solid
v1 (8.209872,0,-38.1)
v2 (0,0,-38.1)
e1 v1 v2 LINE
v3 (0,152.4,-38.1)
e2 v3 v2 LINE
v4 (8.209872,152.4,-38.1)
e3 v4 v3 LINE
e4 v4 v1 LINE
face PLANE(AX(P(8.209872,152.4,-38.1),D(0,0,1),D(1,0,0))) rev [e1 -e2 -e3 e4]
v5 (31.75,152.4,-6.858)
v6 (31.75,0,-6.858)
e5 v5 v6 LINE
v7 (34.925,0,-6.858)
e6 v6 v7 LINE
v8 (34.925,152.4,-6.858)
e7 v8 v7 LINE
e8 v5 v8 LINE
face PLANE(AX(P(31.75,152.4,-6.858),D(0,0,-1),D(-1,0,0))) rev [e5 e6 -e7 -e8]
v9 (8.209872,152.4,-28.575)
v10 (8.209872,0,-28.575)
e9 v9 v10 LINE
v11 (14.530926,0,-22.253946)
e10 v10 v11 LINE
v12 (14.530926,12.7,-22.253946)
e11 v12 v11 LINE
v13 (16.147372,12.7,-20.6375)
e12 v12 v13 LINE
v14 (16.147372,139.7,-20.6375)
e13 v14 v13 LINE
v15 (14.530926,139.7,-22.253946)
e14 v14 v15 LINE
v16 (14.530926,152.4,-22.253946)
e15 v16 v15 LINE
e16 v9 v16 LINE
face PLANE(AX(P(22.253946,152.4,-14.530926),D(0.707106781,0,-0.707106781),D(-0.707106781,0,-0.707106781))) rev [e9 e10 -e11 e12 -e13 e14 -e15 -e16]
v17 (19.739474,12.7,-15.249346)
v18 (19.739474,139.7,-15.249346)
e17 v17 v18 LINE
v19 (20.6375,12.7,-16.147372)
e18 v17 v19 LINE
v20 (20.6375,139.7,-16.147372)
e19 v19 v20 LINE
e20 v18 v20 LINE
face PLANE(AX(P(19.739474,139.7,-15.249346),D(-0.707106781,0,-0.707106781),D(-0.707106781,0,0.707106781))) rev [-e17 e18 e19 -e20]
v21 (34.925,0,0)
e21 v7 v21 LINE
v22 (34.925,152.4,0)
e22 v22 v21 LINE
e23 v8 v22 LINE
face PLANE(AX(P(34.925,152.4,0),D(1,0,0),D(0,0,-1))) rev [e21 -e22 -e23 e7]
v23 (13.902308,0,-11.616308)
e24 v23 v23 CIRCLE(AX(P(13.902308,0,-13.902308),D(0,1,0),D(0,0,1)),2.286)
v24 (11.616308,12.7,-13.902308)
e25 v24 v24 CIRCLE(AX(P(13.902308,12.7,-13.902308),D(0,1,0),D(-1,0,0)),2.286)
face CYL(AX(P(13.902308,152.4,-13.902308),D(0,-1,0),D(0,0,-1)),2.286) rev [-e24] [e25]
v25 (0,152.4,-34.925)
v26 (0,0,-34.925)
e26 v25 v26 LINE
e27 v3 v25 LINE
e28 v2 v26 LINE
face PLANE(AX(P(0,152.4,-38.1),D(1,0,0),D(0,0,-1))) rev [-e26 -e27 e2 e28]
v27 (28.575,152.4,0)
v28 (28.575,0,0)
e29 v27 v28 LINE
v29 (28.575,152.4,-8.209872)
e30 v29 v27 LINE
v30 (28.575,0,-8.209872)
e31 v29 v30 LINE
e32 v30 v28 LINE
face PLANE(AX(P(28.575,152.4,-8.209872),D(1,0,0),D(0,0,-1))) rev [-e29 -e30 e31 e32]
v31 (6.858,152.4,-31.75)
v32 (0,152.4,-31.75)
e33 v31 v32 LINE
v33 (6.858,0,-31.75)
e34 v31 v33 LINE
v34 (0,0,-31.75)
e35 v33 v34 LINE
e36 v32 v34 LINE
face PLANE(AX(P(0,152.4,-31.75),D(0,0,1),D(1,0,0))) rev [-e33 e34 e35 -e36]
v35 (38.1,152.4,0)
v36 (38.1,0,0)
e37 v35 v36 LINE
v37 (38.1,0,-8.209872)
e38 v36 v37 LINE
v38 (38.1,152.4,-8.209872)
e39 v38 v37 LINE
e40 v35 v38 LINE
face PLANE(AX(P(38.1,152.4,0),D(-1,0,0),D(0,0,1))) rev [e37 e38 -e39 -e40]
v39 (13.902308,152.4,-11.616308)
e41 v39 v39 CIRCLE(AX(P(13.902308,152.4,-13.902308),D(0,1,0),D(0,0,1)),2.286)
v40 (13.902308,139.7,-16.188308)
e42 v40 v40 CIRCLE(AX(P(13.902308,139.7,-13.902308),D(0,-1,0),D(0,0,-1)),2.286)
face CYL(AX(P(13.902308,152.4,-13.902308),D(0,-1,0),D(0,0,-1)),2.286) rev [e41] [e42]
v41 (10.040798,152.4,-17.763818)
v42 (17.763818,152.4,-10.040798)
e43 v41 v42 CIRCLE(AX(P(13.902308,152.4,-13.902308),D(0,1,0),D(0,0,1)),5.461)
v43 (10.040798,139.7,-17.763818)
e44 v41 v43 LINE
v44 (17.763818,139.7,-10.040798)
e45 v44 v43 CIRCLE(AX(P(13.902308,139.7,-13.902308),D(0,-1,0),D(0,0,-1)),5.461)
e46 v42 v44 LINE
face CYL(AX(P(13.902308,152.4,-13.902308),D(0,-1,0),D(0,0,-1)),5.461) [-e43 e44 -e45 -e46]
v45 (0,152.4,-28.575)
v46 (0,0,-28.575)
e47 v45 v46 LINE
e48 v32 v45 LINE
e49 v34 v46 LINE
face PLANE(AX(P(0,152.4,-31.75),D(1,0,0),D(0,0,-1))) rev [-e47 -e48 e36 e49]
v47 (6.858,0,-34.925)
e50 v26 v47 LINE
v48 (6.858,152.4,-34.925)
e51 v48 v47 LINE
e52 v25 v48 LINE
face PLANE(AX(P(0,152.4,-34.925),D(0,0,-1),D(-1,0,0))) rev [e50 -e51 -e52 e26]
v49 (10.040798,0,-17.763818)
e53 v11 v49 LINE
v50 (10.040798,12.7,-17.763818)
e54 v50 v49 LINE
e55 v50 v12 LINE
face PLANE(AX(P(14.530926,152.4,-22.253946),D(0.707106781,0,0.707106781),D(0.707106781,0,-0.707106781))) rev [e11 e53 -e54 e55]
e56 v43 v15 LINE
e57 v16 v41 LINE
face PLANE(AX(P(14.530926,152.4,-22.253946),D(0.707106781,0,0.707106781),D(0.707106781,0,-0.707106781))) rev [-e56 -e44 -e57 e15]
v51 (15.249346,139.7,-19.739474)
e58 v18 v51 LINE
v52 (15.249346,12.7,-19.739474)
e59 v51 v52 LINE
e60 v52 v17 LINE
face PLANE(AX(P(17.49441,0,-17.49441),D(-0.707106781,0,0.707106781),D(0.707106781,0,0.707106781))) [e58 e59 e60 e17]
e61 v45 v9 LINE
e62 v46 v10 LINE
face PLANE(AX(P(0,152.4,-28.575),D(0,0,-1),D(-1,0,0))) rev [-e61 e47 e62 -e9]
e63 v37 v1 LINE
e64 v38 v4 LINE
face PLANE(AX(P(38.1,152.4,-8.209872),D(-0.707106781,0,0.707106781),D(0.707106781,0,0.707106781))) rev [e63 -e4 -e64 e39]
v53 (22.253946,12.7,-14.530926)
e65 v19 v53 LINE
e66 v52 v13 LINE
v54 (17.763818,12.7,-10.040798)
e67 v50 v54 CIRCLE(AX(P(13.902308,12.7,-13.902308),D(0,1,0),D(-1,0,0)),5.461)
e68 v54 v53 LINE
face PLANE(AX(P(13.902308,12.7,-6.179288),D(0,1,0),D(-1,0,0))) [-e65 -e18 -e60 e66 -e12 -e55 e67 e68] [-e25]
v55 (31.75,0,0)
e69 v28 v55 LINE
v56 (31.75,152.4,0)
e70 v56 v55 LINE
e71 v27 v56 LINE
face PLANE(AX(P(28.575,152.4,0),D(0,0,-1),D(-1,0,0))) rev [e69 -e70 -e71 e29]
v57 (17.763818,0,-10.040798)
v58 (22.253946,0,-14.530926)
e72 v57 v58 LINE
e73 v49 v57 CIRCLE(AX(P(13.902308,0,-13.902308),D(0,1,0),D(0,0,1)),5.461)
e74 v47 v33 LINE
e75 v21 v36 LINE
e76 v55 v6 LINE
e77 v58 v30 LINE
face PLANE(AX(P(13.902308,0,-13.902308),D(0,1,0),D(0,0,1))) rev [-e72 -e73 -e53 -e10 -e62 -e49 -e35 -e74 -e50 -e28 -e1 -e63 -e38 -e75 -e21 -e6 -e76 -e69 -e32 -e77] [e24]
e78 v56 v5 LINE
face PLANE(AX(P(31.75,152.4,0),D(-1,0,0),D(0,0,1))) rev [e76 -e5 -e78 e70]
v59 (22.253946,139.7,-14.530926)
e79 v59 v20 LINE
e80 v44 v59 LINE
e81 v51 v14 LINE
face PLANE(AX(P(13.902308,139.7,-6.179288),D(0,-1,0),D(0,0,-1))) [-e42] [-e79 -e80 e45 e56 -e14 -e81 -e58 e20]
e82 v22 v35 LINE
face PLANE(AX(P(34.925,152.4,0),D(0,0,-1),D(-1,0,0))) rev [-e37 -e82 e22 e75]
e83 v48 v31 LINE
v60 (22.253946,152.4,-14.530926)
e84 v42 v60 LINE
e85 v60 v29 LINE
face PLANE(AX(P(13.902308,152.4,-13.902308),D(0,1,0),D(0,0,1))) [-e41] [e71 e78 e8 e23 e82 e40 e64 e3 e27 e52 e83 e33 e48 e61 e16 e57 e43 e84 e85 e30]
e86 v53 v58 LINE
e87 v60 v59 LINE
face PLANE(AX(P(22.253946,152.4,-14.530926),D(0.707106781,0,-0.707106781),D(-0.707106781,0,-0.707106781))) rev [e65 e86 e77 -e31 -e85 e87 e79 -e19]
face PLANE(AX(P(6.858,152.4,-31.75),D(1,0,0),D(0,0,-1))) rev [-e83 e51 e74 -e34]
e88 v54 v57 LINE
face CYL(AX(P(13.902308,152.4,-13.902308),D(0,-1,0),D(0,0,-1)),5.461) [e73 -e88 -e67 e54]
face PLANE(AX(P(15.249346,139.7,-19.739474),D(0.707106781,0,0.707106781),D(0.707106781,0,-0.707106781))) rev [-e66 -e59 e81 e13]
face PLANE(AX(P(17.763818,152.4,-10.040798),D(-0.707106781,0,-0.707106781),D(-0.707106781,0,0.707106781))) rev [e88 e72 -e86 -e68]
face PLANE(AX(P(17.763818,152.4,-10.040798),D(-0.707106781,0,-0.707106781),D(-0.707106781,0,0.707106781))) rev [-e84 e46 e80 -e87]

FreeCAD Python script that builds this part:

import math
import FreeCAD as App
import Part
import Sketcher

V = App.Vector
Q = App.Units.Quantity

doc = App.newDocument("Part")
body = doc.addObject("PartDesign::Body", "Body")

# Sketch on XZ plane
sketch1 = body.newObject("Sketcher::SketchObject", "Sketch")
sketch1.AttachmentSupport = (doc.getObject("XZ_Plane"), [""])
sketch1.MapMode = "FlatFace"
sketch1.addGeometry([
    Part.LineSegment(V(38.1, 0, 0), V(38.1, -8.2, 0)),  # 0
    Part.LineSegment(V(38.1, -8.2, 0), V(8.2, -38.1, 0)),  # 1
    Part.LineSegment(V(8.2, -38.1, 0), V(0, -38.1, 0)),  # 2
    Part.LineSegment(V(0, -38.1, 0), V(0, -34.9, 0)),  # 3
    Part.LineSegment(V(0, -34.9, 0), V(6.9, -34.9, 0)),  # 4
    Part.LineSegment(V(6.9, -34.9, 0), V(6.9, -31.8, 0)),  # 5
    Part.LineSegment(V(6.9, -31.8, 0), V(0, -31.8, 0)),  # 6
    Part.LineSegment(V(0, -31.8, 0), V(0, -28.6, 0)),  # 7
    Part.LineSegment(V(0, -28.6, 0), V(8.2, -28.6, 0)),  # 8
    Part.LineSegment(V(8.2, -28.6, 0), V(14.5, -22.3, 0)),  # 9
    Part.LineSegment(V(14.5, -22.3, 0), V(10, -17.8, 0)),  # 10
    Part.ArcOfCircle(Part.Circle(V(13.9, -13.9, 0), V(0, 0, 1), 5.5), math.radians(45), math.radians(225)),  # 11
    Part.LineSegment(V(17.8, -10, 0), V(22.3, -14.5, 0)),  # 12
    Part.LineSegment(V(22.3, -14.5, 0), V(28.6, -8.2, 0)),  # 13
    Part.LineSegment(V(28.6, -8.2, 0), V(28.6, 0, 0)),  # 14
    Part.LineSegment(V(28.6, 0, 0), V(31.8, 0, 0)),  # 15
    Part.LineSegment(V(31.8, 0, 0), V(31.8, -6.9, 0)),  # 16
    Part.LineSegment(V(31.8, -6.9, 0), V(34.9, -6.9, 0)),  # 17
    Part.LineSegment(V(34.9, -6.9, 0), V(34.9, 0, 0)),  # 18
    Part.LineSegment(V(34.9, 0, 0), V(38.1, 0, 0)),  # 19
    Part.Circle(V(13.9, -13.9, 0), V(0, 0, 1), 2.3),  # 20
], False)
sketch1.addConstraint([
    Sketcher.Constraint("Coincident", 0, 2, 1, 1),
    Sketcher.Constraint("Coincident", 1, 2, 2, 1),
    Sketcher.Constraint("Coincident", 2, 2, 3, 1),
    Sketcher.Constraint("Coincident", 3, 2, 4, 1),
    Sketcher.Constraint("Coincident", 4, 2, 5, 1),
    Sketcher.Constraint("Coincident", 5, 2, 6, 1),
    Sketcher.Constraint("Coincident", 6, 2, 7, 1),
    Sketcher.Constraint("Coincident", 7, 2, 8, 1),
    Sketcher.Constraint("Coincident", 8, 2, 9, 1),
    Sketcher.Constraint("Coincident", 9, 2, 10, 1),
    Sketcher.Constraint("Tangent", 10, 2, 11, 2),
    Sketcher.Constraint("Tangent", 11, 1, 12, 1),
    Sketcher.Constraint("Coincident", 12, 2, 13, 1),
    Sketcher.Constraint("Coincident", 13, 2, 14, 1),
    Sketcher.Constraint("Coincident", 14, 2, 15, 1),
    Sketcher.Constraint("Coincident", 15, 2, 16, 1),
    Sketcher.Constraint("Coincident", 16, 2, 17, 1),
    Sketcher.Constraint("Coincident", 17, 2, 18, 1),
    Sketcher.Constraint("Coincident", 18, 2, 19, 1),
    Sketcher.Constraint("Coincident", 19, 2, 0, 1),
    Sketcher.Constraint("Vertical", 0),
    Sketcher.Constraint("Horizontal", 2),
    Sketcher.Constraint("Vertical", 3),
    Sketcher.Constraint("Horizontal", 4),
    Sketcher.Constraint("Vertical", 5),
    Sketcher.Constraint("Horizontal", 6),
    Sketcher.Constraint("Vertical", 7),
    Sketcher.Constraint("Horizontal", 8),
    Sketcher.Constraint("Vertical", 14),
    Sketcher.Constraint("Horizontal", 15),
    Sketcher.Constraint("Vertical", 16),
    Sketcher.Constraint("Horizontal", 17),
    Sketcher.Constraint("Vertical", 18),
    Sketcher.Constraint("Horizontal", 19),
    Sketcher.Constraint("Coincident", 20, 3, 11, 3),
    Sketcher.Constraint("PointOnObject", 2, 2, -2),
    Sketcher.Constraint("PointOnObject", 6, 2, -2),
    Sketcher.Constraint("PointOnObject", 14, 2, -1),
    Sketcher.Constraint("PointOnObject", 18, 2, -1),
    Sketcher.Constraint("Parallel", 1, 9),
    Sketcher.Constraint("Perpendicular", 9, 10),
    Sketcher.Constraint("Parallel", 10, 12),
    Sketcher.Constraint("Perpendicular", 12, 13),
    Sketcher.Constraint("Horizontal", 0, 2, 13, 2),
    Sketcher.Constraint("Vertical", 1, 2, 8, 2),
    Sketcher.Constraint("Equal", 15, 17),
    Sketcher.Constraint("Equal", 17, 19),
    Sketcher.Constraint("Equal", 8, 0),
    Sketcher.Constraint("Equal", 19, 3),
    Sketcher.Constraint("Equal", 3, 5),
    Sketcher.Constraint("Equal", 5, 7),
    Sketcher.Constraint("Equal", 6, 16),
    Sketcher.Constraint("Equal", 10, 12),
    Sketcher.Constraint("Equal", 9, 13),
    Sketcher.Constraint("Diameter", 20, Q("0.18 in")),
    Sketcher.Constraint("Radius", 11, Q("0.215 in")),
    Sketcher.Constraint("DistanceX", 4, 1, 4, 2, Q("0.27 in")),
    Sketcher.Constraint("DistanceX", -1, 1, 0, 2, Q("1.5 in")),
    Sketcher.Constraint("Distance", 10, Q("0.25 in")),
    Sketcher.Constraint("DistanceX", 15, 1, 15, 2, Q("0.125 in")),
    Sketcher.Constraint("DistanceX", 2, 2, 2, 1, Q("8.209872 mm")),
])
pad1 = body.newObject("PartDesign::Pad", "Pad")
pad1.Profile = sketch1
pad1.Length = Q("6 in")
pad1.Reversed = True

# Sketch on an angled plane
sketch2 = body.newObject("Sketcher::SketchObject", "Sketch001")
sketch2.Placement = App.Placement(V(18.392436, 0, -18.392436), App.Rotation(V(0.707106781, 0, 0.707106781), V(0, 0.999999999, 0), V(-0.707106781, 0, 0.707106781), "ZXY"))
sketch2.addGeometry([
    Part.LineSegment(V(-5, 140, 0), V(-5, 13, 0)),
    Part.LineSegment(V(-5, 13, 0), V(5, 13, 0)),
    Part.LineSegment(V(5, 13, 0), V(5, 140, 0)),
    Part.LineSegment(V(5, 140, 0), V(-5, 140, 0)),
], False)
sketch2.addConstraint([
    Sketcher.Constraint("Coincident", 0, 2, 1, 1),
    Sketcher.Constraint("Coincident", 1, 2, 2, 1),
    Sketcher.Constraint("Coincident", 2, 2, 3, 1),
    Sketcher.Constraint("Coincident", 3, 2, 0, 1),
    Sketcher.Constraint("Vertical", 0),
    Sketcher.Constraint("Horizontal", 1),
    Sketcher.Constraint("Vertical", 2),
    Sketcher.Constraint("Horizontal", 3),
    Sketcher.Constraint("DistanceY", 0, 2, 0, 1, Q("5 in")),
    Sketcher.Constraint("DistanceX", 1, 1, 1, 2, Q("0.43 in")),
    Sketcher.Constraint("DistanceY", -1, 1, 0, 2, Q("0.5 in")),
    Sketcher.Constraint("DistanceX", 0, 2, -1, 1, Q("0.215 in")),
])
pocket1 = body.newObject("PartDesign::Pocket", "Pocket")
pocket1.Profile = sketch2
pocket1.Length = Q("0.465 in")
pocket1.Reversed = True

# Sketch on an angled plane
sketch3 = body.newObject("Sketcher::SketchObject", "Sketch002")
sketch3.Placement = App.Placement(V(18.392436, 0, -18.392436), App.Rotation(V(0.707106781, 0, 0.707106781), V(0, 0.999999999, 0), V(-0.707106781, 0, 0.707106781), "ZXY"))
sketch3.addGeometry([
    Part.LineSegment(V(-3, 140, 0), V(-3, 13, 0)),
    Part.LineSegment(V(-3, 13, 0), V(3, 13, 0)),
    Part.LineSegment(V(3, 13, 0), V(3, 140, 0)),
    Part.LineSegment(V(3, 140, 0), V(-3, 140, 0)),
], False)
sketch3.addConstraint([
    Sketcher.Constraint("Coincident", 0, 2, 1, 1),
    Sketcher.Constraint("Coincident", 1, 2, 2, 1),
    Sketcher.Constraint("Coincident", 2, 2, 3, 1),
    Sketcher.Constraint("Coincident", 3, 2, 0, 1),
    Sketcher.Constraint("Vertical", 0),
    Sketcher.Constraint("Horizontal", 1),
    Sketcher.Constraint("Vertical", 2),
    Sketcher.Constraint("Horizontal", 3),
    Sketcher.Constraint("DistanceY", 0, 2, 0, 1, Q("5 in")),
    Sketcher.Constraint("DistanceX", 1, 1, 1, 2, Q("0.25 in")),
    Sketcher.Constraint("DistanceY", -1, 1, 0, 2, Q("0.5 in")),
    Sketcher.Constraint("DistanceX", 0, 2, -1, 1, Q("0.125 in")),
])
pad2 = body.newObject("PartDesign::Pad", "Pad001")
pad2.Profile = sketch3
pad2.Length = Q("0.05 in")

doc.recompute()
